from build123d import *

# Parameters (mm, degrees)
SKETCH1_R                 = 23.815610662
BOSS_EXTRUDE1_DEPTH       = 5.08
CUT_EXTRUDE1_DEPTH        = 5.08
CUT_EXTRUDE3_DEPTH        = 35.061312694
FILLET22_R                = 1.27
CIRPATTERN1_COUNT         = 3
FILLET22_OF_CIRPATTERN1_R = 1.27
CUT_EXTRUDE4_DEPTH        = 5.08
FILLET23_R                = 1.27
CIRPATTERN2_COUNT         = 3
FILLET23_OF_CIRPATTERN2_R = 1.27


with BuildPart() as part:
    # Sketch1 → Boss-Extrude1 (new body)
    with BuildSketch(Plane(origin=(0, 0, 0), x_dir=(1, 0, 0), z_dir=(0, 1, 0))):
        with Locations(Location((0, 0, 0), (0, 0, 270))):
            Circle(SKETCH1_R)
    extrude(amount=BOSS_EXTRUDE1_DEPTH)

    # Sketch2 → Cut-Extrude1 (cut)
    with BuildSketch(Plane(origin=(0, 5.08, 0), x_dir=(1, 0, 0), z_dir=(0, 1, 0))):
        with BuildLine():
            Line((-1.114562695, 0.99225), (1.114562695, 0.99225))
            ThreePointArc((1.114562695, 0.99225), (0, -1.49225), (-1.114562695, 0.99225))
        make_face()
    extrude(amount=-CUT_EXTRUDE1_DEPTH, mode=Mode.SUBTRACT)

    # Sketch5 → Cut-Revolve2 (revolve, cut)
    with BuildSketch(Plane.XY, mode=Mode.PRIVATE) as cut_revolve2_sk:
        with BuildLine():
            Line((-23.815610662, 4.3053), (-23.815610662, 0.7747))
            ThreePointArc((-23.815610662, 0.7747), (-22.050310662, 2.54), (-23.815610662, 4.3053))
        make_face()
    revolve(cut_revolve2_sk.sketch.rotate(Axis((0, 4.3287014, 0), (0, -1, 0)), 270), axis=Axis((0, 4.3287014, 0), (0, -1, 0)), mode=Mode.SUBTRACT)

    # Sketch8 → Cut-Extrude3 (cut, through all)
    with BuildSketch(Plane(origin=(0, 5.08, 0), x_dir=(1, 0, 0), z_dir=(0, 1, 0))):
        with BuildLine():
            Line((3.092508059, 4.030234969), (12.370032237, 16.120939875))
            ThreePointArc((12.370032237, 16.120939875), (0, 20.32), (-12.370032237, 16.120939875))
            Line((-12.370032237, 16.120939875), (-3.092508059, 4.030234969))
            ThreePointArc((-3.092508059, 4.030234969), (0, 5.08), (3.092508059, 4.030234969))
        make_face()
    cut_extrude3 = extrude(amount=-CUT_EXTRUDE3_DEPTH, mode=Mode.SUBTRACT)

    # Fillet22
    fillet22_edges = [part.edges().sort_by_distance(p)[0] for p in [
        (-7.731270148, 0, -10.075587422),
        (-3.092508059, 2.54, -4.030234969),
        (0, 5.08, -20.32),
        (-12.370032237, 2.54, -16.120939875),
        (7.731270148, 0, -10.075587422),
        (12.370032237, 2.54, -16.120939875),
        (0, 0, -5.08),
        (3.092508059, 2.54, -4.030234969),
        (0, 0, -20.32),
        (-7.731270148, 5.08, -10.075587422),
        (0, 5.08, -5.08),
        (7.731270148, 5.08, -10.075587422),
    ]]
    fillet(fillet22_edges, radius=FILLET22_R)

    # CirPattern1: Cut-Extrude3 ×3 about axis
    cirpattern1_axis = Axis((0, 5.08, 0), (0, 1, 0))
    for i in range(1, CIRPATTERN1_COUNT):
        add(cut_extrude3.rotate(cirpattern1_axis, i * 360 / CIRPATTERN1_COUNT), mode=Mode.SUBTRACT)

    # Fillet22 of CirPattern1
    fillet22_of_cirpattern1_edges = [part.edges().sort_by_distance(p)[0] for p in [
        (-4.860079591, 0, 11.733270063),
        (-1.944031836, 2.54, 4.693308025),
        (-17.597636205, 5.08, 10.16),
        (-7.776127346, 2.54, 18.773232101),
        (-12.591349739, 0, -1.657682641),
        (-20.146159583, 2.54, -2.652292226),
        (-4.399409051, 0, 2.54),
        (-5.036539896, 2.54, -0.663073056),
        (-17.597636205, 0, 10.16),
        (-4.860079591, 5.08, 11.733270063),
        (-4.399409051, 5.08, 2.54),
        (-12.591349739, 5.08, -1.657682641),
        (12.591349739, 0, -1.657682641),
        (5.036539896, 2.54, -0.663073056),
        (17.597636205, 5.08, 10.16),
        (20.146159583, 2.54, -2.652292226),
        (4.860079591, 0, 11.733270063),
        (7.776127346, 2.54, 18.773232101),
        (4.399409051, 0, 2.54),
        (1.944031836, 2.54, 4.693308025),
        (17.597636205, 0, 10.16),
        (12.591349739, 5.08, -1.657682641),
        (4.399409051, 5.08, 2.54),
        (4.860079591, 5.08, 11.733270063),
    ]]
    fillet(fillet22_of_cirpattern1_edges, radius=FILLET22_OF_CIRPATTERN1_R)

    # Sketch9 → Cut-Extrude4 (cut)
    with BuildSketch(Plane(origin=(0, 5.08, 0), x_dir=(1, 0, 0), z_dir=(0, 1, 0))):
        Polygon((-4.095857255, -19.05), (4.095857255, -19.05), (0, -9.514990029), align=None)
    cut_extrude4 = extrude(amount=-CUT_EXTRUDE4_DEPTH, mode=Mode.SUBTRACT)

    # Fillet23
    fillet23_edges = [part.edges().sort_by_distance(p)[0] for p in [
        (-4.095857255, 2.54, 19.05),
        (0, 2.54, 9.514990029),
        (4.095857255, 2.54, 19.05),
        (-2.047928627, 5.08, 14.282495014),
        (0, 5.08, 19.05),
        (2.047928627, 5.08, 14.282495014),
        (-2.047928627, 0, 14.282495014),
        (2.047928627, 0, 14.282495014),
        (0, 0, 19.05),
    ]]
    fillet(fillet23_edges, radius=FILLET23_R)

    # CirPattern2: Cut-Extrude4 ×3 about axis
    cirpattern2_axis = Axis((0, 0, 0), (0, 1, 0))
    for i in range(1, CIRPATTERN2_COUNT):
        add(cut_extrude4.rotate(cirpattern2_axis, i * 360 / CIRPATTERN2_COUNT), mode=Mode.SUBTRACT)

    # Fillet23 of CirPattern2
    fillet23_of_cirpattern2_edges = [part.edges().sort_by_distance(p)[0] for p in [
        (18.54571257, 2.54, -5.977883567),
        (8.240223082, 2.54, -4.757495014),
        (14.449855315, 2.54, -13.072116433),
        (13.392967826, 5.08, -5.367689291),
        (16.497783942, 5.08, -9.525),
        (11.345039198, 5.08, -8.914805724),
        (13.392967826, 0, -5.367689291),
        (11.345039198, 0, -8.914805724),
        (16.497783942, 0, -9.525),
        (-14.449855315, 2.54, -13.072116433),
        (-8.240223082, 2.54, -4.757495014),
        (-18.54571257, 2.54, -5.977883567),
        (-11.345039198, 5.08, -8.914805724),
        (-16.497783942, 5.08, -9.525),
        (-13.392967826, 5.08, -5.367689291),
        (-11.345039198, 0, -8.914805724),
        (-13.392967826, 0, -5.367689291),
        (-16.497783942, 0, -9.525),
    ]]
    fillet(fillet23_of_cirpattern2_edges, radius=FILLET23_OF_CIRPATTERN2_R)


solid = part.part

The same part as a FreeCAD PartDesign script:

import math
import FreeCAD as App
import Part
import Sketcher
from FreeCAD import Vector
Q = App.Units.Quantity


def edges_at(feature, points):
    """Names of the edges that pass closest to the given points."""
    edges = feature.Shape.Edges
    near = lambda p: min(range(len(edges)), key=lambda i: edges[i].distToShape(Part.Vertex(*p))[0])
    return sorted({f"Edge{near(p) + 1}" for p in points})


def add_polygon(sketch, points):
    """Adds a closed chain of lines whose ends are joined by coincident constraints."""
    first, n = sketch.GeometryCount, len(points)
    for a, b in zip(points, points[1:] + points[:1]):
        sketch.addGeometry(Part.LineSegment(App.Vector(*a, 0), App.Vector(*b, 0)), False)
    for i in range(n):
        sketch.addConstraint(Sketcher.Constraint("Coincident", first + i, 2, first + (i + 1) % n, 1))

doc = App.newDocument("Part")
body = doc.addObject("PartDesign::Body", "Body")

# Sketch on XZ plane
sketch1 = body.newObject("Sketcher::SketchObject", "Sketch")
sketch1.AttachmentSupport = (doc.getObject("XZ_Plane"), [""])
sketch1.MapMode = "FlatFace"
sketch1.addGeometry(Part.Circle(Vector(0, 0, 0), Vector(0, 0, 1), 24), False)
sketch1.addConstraint(Sketcher.Constraint("Coincident", 0, 3, -1, 1))
sketch1.addConstraint(Sketcher.Constraint("Diameter", 0, 47.631221))
pad1 = body.newObject("PartDesign::Pad", "Pad")
pad1.Profile = sketch1
pad1.Length = Q("0.2 in")
pad1.Reversed = True

# Sketch on XZ plane
sketch2 = body.newObject("Sketcher::SketchObject", "Sketch001")
sketch2.AttachmentSupport = (doc.getObject("XZ_Plane"), [""])
sketch2.MapMode = "FlatFace"
sketch2.AttachmentOffset = App.Placement(Vector(0, 0, -0.2 * 25.4), App.Rotation())
sketch2.addGeometry(Part.LineSegment(Vector(1.1, -1, 0), Vector(-1.1, -1, 0)), False)
sketch2.addGeometry(Part.ArcOfCircle(Part.Circle(Vector(0, 0, 0), Vector(0, 0, 1), 1.5), math.radians(-42), math.radians(222)), False)
sketch2.addConstraint(Sketcher.Constraint("Coincident", 0, 1, 1, 1))
sketch2.addConstraint(Sketcher.Constraint("Coincident", 1, 2, 0, 2))
sketch2.addConstraint(Sketcher.Constraint("Horizontal", 0))
sketch2.addConstraint(Sketcher.Constraint("Coincident", 1, 3, -1, 1))
sketch2.addConstraint(Sketcher.Constraint("Radius", 1, 1.49225))
sketch2.addConstraint(Sketcher.Constraint("DistanceX", 0, 2, 0, 1, 2.229125))
pocket1 = body.newObject("PartDesign::Pocket", "Pocket")
pocket1.Profile = sketch2
pocket1.Length = Q("0.2 in")
pocket1.Reversed = True

# Sketch on XY plane
sketch3 = body.newObject("Sketcher::SketchObject", "Sketch002")
sketch3.AttachmentSupport = (doc.getObject("XY_Plane"), [""])
sketch3.MapMode = "FlatFace"
sketch3.addGeometry(Part.LineSegment(Vector(-23.8, 4.3, 0), Vector(-23.8, 0.8, 0)), False)
sketch3.addGeometry(Part.ArcOfCircle(Part.Circle(Vector(-23.8, 2.5, 0), Vector(0, 0, 1), 1.8), math.radians(-90), math.radians(90)), False)
sketch3.addConstraint(Sketcher.Constraint("Coincident", 0, 1, 1, 2))
sketch3.addConstraint(Sketcher.Constraint("Coincident", 1, 1, 0, 2))
sketch3.addConstraint(Sketcher.Constraint("Vertical", 0))
sketch3.addConstraint(Sketcher.Constraint("Vertical", 1, 3, 0, 1))
sketch3.addConstraint(Sketcher.Constraint("DistanceY", -1, 1, 1, 3, Q("0.1 in")))
sketch3.addConstraint(Sketcher.Constraint("Radius", 1, Q("0.0695 in")))
sketch3.addConstraint(Sketcher.Constraint("DistanceX", 1, 3, -1, 1, 23.815611))
groove = body.newObject("PartDesign::Groove", "Groove")
groove.Profile = sketch3
groove.ReferenceAxis = (sketch3, ["V_Axis"])
groove.Angle = 360

# Sketch on XZ plane
sketch4 = body.newObject("Sketcher::SketchObject", "Sketch003")
sketch4.AttachmentSupport = (doc.getObject("XZ_Plane"), [""])
sketch4.MapMode = "FlatFace"
sketch4.AttachmentOffset = App.Placement(Vector(0, 0, -0.2 * 25.4), App.Rotation())
sketch4.addGeometry(Part.LineSegment(Vector(3, -4, 0), Vector(12, -16, 0)), False)
sketch4.addGeometry(Part.ArcOfCircle(Part.Circle(Vector(0, 0, 0), Vector(0, 0, 1), 20), math.radians(-127), math.radians(-53)), False)
sketch4.addGeometry(Part.LineSegment(Vector(-12, -16, 0), Vector(-3, -4, 0)), False)
sketch4.addGeometry(Part.ArcOfCircle(Part.Circle(Vector(0, 0, 0), Vector(0, 0, 1), 5), math.radians(-127), math.radians(-53)), False)
sketch4.addConstraint(Sketcher.Constraint("Coincident", 0, 2, 1, 2))
sketch4.addConstraint(Sketcher.Constraint("Coincident", 1, 1, 2, 1))
sketch4.addConstraint(Sketcher.Constraint("Coincident", 2, 2, 3, 1))
sketch4.addConstraint(Sketcher.Constraint("Coincident", 3, 2, 0, 1))
sketch4.addConstraint(Sketcher.Constraint("Coincident", 1, 3, -1, 1))
sketch4.addConstraint(Sketcher.Constraint("Coincident", 3, 3, -1, 1))
sketch4.addConstraint(Sketcher.Constraint("Horizontal", 0, 2, 1, 1))
sketch4.addConstraint(Sketcher.Constraint("Horizontal", 2, 2, 3, 2))
sketch4.addConstraint(Sketcher.Constraint("Radius", 1, Q("0.8 in")))
sketch4.addConstraint(Sketcher.Constraint("Radius", 3, Q("0.2 in")))
sketch4.addConstraint(Sketcher.Constraint("Angle", 0, Q("-52.5 deg")))
sketch4.addConstraint(Sketcher.Constraint("DistanceY", 0, 2, -1, 1, 16.12094))
pocket2 = body.newObject("PartDesign::Pocket", "Pocket001")
pocket2.Profile = sketch4
pocket2.Type = "ThroughAll"
pocket2.Reversed = True
doc.recompute()

fillet = body.newObject("PartDesign::Fillet", "Fillet")
fillet.Base = (pocket2, edges_at(pocket2, [
    (-7.731, 0, -10.076),
    (-3.093, 2.54, -4.03),
    (0, 5.08, -20.32),
    (-12.37, 2.54, -16.121),
    (7.731, 0, -10.076),
    (12.37, 2.54, -16.121),
    (0, 0, -5.08),
    (3.093, 2.54, -4.03),
    (0, 0, -20.32),
    (-7.731, 5.08, -10.076),
    (0, 5.08, -5.08),
    (7.731, 5.08, -10.076),
]))
fillet.Radius = Q("0.05 in")
doc.recompute()

polarpattern = body.newObject("PartDesign::PolarPattern", "PolarPattern")
polarpattern.Originals = [pocket2]
polarpattern.Axis = (doc.getObject("Y_Axis"), [""])
polarpattern.Angle = 360
polarpattern.Occurrences = 3
body.Tip = polarpattern
doc.recompute()

fillet2 = body.newObject("PartDesign::Fillet", "Fillet001")
fillet2.Base = (polarpattern, edges_at(polarpattern, [
    (-4.86, 0, 11.733),
    (-1.944, 2.54, 4.693),
    (-17.598, 5.08, 10.16),
    (-7.776, 2.54, 18.773),
    (-12.591, 0, -1.658),
    (-20.146, 2.54, -2.652),
    (-4.399, 0, 2.54),
    (-5.037, 2.54, -0.663),
    (-17.598, 0, 10.16),
    (-4.86, 5.08, 11.733),
    (-4.399, 5.08, 2.54),
    (-12.591, 5.08, -1.658),
    (12.591, 0, -1.658),
    (5.037, 2.54, -0.663),
    (17.598, 5.08, 10.16),
    (20.146, 2.54, -2.652),
    (4.86, 0, 11.733),
    (7.776, 2.54, 18.773),
    (4.399, 0, 2.54),
    (1.944, 2.54, 4.693),
    (17.598, 0, 10.16),
    (12.591, 5.08, -1.658),
    (4.399, 5.08, 2.54),
    (4.86, 5.08, 11.733),
]))
fillet2.Radius = Q("0.05 in")

# Sketch on XZ plane
sketch5 = body.newObject("Sketcher::SketchObject", "Sketch004")
sketch5.AttachmentSupport = (doc.getObject("XZ_Plane"), [""])
sketch5.MapMode = "FlatFace"
sketch5.AttachmentOffset = App.Placement(Vector(0, 0, -0.2 * 25.4), App.Rotation())
add_polygon(sketch5, [(-4, 19), (4, 19), (0, 10)])  # lines 0-2
sketch5.addConstraint(Sketcher.Constraint("Horizontal", 0))
sketch5.addConstraint(Sketcher.Constraint("PointOnObject", 1, 2, -2))
sketch5.addConstraint(Sketcher.Constraint("Equal", 1, 2))
sketch5.addConstraint(Sketcher.Constraint("DistanceY", -1, 1, 0, 2, Q("0.75 in")))
sketch5.addConstraint(Sketcher.Constraint("DistanceX", 0, 1, 0, 2, 8.191715))
sketch5.addConstraint(Sketcher.Constraint("DistanceY", -1, 1, 1, 2, 9.51499))
pocket3 = body.newObject("PartDesign::Pocket", "Pocket002")
pocket3.Profile = sketch5
pocket3.Length = Q("0.2 in")
pocket3.Reversed = True
doc.recompute()

fillet3 = body.newObject("PartDesign::Fillet", "Fillet002")
fillet3.Base = (pocket3, edges_at(pocket3, [
    (-4.096, 2.54, 19.05),
    (0, 2.54, 9.515),
    (4.096, 2.54, 19.05),
    (-2.048, 5.08, 14.282),
    (0, 5.08, 19.05),
    (2.048, 5.08, 14.282),
    (-2.048, 0, 14.282),
    (2.048, 0, 14.282),
    (0, 0, 19.05),
]))
fillet3.Radius = Q("0.05 in")
doc.recompute()

polarpattern2 = body.newObject("PartDesign::PolarPattern", "PolarPattern001")
polarpattern2.Originals = [pocket3]
polarpattern2.Axis = (doc.getObject("Y_Axis"), [""])
polarpattern2.Angle = 360
polarpattern2.Occurrences = 3
body.Tip = polarpattern2
doc.recompute()

fillet4 = body.newObject("PartDesign::Fillet", "Fillet003")
fillet4.Base = (polarpattern2, edges_at(polarpattern2, [
    (18.546, 2.54, -5.978),
    (8.24, 2.54, -4.757),
    (14.45, 2.54, -13.072),
    (13.393, 5.08, -5.368),
    (16.498, 5.08, -9.525),
    (11.345, 5.08, -8.915),
    (13.393, 0, -5.368),
    (11.345, 0, -8.915),
    (16.498, 0, -9.525),
    (-14.45, 2.54, -13.072),
    (-8.24, 2.54, -4.757),
    (-18.546, 2.54, -5.978),
    (-11.345, 5.08, -8.915),
    (-16.498, 5.08, -9.525),
    (-13.393, 5.08, -5.368),
    (-11.345, 0, -8.915),
    (-13.393, 0, -5.368),
    (-16.498, 0, -9.525),
]))
fillet4.Radius = Q("0.05 in")

doc.recompute()
